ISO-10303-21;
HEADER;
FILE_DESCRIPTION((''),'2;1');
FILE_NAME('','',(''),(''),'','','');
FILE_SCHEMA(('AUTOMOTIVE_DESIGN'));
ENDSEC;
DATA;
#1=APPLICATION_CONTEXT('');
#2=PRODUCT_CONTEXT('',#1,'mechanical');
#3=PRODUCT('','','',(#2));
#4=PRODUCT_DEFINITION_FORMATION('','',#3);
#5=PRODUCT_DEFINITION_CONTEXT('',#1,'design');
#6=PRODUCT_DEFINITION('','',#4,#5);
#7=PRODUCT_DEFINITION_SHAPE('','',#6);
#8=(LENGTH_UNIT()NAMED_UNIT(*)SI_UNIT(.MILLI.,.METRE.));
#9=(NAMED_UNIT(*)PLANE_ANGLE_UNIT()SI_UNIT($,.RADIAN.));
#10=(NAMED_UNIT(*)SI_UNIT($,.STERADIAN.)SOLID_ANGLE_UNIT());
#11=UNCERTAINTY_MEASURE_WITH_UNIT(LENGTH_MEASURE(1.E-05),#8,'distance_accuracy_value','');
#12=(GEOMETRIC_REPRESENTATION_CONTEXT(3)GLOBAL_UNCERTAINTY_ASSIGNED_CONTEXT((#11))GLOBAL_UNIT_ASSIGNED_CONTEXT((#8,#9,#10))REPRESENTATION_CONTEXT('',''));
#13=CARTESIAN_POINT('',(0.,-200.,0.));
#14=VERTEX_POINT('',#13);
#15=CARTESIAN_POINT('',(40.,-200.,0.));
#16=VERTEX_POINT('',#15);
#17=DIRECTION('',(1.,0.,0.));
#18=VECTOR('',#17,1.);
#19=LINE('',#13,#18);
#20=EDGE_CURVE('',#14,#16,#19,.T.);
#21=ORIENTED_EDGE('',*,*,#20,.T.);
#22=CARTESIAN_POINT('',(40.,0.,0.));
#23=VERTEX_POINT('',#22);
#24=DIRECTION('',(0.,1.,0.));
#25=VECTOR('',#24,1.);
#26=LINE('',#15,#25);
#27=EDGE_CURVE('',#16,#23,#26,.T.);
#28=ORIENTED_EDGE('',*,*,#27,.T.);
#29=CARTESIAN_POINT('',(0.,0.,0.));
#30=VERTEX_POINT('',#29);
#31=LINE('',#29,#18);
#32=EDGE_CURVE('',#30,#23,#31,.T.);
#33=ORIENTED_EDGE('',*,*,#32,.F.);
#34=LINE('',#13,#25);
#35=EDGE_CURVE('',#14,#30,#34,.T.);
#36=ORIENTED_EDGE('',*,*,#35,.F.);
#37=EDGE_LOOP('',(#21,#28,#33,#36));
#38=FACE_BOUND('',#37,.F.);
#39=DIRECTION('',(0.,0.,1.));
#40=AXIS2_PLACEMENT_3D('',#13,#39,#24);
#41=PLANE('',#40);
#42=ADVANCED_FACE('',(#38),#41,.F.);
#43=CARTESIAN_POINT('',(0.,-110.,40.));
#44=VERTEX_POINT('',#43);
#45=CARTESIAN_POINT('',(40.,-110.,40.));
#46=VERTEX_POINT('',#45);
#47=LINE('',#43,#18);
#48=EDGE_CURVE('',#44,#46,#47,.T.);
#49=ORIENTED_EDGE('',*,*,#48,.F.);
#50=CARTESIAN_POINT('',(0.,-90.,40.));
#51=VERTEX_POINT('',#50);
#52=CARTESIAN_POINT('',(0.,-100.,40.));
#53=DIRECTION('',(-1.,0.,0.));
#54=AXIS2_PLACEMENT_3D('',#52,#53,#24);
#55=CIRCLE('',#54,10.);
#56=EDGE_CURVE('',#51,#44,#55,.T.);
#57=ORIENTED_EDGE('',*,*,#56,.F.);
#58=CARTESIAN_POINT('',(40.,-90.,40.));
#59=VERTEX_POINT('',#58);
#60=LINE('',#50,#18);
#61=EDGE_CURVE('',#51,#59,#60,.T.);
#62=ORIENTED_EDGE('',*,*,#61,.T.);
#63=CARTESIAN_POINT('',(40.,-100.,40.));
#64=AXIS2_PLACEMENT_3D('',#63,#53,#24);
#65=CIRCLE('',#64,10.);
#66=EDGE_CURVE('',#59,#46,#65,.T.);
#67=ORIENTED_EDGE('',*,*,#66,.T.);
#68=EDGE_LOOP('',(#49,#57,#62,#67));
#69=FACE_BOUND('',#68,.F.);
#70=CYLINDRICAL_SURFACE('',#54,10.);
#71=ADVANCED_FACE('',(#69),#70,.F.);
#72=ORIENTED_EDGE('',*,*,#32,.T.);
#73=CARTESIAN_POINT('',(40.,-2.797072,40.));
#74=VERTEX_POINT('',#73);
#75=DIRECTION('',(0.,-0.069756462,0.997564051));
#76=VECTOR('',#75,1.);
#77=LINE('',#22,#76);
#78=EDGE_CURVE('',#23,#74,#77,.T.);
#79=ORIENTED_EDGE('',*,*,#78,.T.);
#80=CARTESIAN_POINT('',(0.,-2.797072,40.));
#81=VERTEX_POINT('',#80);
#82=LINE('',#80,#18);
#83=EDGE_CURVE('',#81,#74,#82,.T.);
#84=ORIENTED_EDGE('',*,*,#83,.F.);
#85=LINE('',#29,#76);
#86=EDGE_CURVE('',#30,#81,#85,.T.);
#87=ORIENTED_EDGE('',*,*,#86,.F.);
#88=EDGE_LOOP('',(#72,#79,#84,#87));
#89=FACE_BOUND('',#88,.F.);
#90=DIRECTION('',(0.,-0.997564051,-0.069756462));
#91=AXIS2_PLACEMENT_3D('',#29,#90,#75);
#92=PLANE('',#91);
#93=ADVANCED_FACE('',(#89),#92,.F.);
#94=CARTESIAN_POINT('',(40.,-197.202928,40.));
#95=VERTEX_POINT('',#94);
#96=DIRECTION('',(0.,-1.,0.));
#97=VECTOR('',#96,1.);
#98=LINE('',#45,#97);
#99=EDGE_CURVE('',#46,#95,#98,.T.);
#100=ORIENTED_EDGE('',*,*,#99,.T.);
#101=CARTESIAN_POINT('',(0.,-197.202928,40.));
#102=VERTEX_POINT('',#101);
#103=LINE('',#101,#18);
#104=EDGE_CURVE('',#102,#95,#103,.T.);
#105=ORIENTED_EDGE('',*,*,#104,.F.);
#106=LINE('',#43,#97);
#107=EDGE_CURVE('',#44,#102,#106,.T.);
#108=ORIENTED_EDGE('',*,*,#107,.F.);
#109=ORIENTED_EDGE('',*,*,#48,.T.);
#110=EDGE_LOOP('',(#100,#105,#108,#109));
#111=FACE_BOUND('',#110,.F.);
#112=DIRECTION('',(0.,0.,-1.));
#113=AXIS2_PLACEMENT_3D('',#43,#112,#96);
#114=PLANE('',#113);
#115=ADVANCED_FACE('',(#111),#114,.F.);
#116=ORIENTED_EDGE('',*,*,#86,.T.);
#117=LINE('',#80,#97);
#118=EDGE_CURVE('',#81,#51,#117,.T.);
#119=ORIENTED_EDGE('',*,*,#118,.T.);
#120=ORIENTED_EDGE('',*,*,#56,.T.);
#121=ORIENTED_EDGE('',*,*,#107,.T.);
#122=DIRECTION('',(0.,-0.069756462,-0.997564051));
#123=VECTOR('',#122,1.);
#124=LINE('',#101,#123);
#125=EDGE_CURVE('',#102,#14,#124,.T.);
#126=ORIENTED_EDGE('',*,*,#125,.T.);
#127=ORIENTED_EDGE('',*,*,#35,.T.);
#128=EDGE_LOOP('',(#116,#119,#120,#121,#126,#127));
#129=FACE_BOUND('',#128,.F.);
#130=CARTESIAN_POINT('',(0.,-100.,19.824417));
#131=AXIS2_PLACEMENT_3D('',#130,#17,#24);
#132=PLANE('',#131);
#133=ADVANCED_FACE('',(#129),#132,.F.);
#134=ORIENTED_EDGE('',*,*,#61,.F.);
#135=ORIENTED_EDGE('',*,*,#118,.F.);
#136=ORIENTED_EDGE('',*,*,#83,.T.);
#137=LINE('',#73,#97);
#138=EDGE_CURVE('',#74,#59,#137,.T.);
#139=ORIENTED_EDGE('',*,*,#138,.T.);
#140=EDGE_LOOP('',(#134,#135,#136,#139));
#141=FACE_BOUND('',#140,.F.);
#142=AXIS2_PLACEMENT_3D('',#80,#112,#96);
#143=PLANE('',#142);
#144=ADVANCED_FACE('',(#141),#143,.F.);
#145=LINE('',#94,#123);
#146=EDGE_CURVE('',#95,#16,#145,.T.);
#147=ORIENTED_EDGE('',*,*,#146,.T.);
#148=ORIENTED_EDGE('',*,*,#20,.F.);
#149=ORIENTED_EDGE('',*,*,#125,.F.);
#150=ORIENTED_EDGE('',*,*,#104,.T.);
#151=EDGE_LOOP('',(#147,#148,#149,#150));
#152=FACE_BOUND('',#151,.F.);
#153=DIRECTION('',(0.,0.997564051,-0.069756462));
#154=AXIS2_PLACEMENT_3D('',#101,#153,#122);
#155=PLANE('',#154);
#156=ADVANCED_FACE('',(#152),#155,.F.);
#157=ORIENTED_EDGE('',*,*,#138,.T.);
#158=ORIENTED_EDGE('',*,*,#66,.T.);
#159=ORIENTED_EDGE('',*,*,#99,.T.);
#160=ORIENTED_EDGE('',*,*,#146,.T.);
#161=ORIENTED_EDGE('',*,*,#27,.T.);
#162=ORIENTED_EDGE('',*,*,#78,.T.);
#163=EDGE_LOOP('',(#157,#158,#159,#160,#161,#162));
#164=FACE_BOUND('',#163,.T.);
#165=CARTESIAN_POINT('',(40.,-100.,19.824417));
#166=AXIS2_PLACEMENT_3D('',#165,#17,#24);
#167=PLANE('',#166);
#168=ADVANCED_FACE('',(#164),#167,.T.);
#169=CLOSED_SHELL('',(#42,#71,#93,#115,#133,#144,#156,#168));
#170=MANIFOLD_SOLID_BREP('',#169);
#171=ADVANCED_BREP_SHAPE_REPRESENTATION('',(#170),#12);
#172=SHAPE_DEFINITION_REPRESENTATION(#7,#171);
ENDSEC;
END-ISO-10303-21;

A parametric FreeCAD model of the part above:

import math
import FreeCAD as App
import Part
import Sketcher

V = App.Vector
Q = App.Units.Quantity

doc = App.newDocument("Part")
body = doc.addObject("PartDesign::Body", "Body")

# Sketch on YZ plane
sketch1 = body.newObject("Sketcher::SketchObject", "Sketch")
sketch1.AttachmentSupport = (doc.getObject("YZ_Plane"), [""])
sketch1.MapMode = "FlatFace"
sketch1.addGeometry([
    Part.LineSegment(V(-200, 0, 0), V(0, 0, 0)),  # 0
    Part.LineSegment(V(0, 0, 0), V(-2.797072, 40, 0)),  # 1
    Part.LineSegment(V(-2.797072, 40, 0), V(-90, 40, 0)),  # 2
    Part.ArcOfCircle(Part.Circle(V(-100, 40, 0), V(0, 0, 1), 10), math.radians(180), math.radians(360)),  # 3
    Part.LineSegment(V(-110, 40, 0), V(-197.202928, 40, 0)),  # 4
    Part.LineSegment(V(-197.202928, 40, 0), V(-200, 0, 0)),  # 5
], False)
sketch1.addConstraint([
    Sketcher.Constraint("Coincident", 0, 2, 1, 1),
    Sketcher.Constraint("Coincident", 1, 2, 2, 1),
    Sketcher.Constraint("Coincident", 2, 2, 3, 2),
    Sketcher.Constraint("Coincident", 3, 1, 4, 1),
    Sketcher.Constraint("Coincident", 4, 2, 5, 1),
    Sketcher.Constraint("Coincident", 5, 2, 0, 1),
    Sketcher.Constraint("Horizontal", 0),
    Sketcher.Constraint("Horizontal", 2),
    Sketcher.Constraint("Horizontal", 4),
    Sketcher.Constraint("Coincident", 0, 2, -1, 1),
    Sketcher.Constraint("Horizontal", 3, 3, 1, 2),
    Sketcher.Constraint("Horizontal", 2, 2, 3, 1),
    Sketcher.Constraint("Equal", 2, 4),
    Sketcher.Constraint("Equal", 1, 5),
    Sketcher.Constraint("Radius", 3, 10.0),
    Sketcher.Constraint("DistanceX", 0, 1, 0, 2, 200.0),
    Sketcher.Constraint("Angle", 1, Q("93.999999 deg")),
    Sketcher.Constraint("DistanceY", -1, 1, 3, 3, 40.0),
])
pad1 = body.newObject("PartDesign::Pad", "Pad")
pad1.Profile = sketch1
pad1.Length = 40

doc.recompute()
